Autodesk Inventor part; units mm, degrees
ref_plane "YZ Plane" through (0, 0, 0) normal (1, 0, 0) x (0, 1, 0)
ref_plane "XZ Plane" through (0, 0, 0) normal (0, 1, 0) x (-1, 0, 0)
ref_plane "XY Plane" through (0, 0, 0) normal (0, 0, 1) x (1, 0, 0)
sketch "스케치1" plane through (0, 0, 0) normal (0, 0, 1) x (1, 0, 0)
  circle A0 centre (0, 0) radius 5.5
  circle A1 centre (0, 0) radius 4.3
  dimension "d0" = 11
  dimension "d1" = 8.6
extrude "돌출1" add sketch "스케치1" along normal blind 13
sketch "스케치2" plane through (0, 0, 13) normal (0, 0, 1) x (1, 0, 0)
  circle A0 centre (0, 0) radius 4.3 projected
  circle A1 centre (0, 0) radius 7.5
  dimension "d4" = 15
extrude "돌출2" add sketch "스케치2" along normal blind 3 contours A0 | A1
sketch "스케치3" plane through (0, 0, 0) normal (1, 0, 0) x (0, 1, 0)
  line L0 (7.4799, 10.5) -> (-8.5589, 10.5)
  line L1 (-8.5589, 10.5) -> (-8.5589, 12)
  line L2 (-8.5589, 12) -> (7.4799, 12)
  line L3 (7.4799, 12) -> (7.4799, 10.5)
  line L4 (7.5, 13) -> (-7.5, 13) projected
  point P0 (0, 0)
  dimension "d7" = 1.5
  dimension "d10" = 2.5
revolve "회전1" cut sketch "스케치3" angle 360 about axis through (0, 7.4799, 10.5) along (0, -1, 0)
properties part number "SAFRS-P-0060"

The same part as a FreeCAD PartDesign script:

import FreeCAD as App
import Part
import Sketcher

V = App.Vector
Q = App.Units.Quantity

doc = App.newDocument("Part")
body = doc.addObject("PartDesign::Body", "Body")

sketch1 = body.newObject("Sketcher::SketchObject", "Sketch")
sketch1.AttachmentSupport = (doc.getObject("XY_Plane"), [""])
sketch1.MapMode = "FlatFace"
sketch1.addGeometry(Part.Circle(V(0, 0, 0), V(0, 0, 1), 5.5), False)
sketch1.addGeometry(Part.Circle(V(0, 0, 0), V(0, 0, 1), 4.3), False)
sketch1.addConstraint(Sketcher.Constraint("Coincident", 0, 3, -1, 1))
sketch1.addConstraint(Sketcher.Constraint("Coincident", 1, 3, -1, 1))
sketch1.addConstraint(Sketcher.Constraint("Diameter", 0, Q("11 mm")))
sketch1.addConstraint(Sketcher.Constraint("Diameter", 1, Q("8.6 mm")))
pad1 = body.newObject("PartDesign::Pad", "Pad")
pad1.Profile = sketch1
pad1.Length = 13

sketch2 = body.newObject("Sketcher::SketchObject", "Sketch001")
sketch2.AttachmentSupport = (doc.getObject("XY_Plane"), [""])
sketch2.MapMode = "FlatFace"
sketch2.AttachmentOffset = App.Placement(V(0, 0, 13), App.Rotation())
sketch2.addGeometry(Part.Circle(V(0, 0, 0), V(0, 0, 1), 8), False)
sketch2.addConstraint(Sketcher.Constraint("Coincident", 0, 3, -1, 1))
sketch2.addConstraint(Sketcher.Constraint("Diameter", 0, Q("15 mm")))
pad2 = body.newObject("PartDesign::Pad", "Pad001")
pad2.Profile = sketch2
pad2.Length = 3

sketch3 = body.newObject("Sketcher::SketchObject", "Sketch002")
sketch3.AttachmentSupport = (doc.getObject("YZ_Plane"), [""])
sketch3.MapMode = "FlatFace"
sketch3.addGeometry(Part.LineSegment(V(-8.6, 10.5, 0), V(7.5, 10.5, 0)), False)
sketch3.addGeometry(Part.LineSegment(V(7.5, 10.5, 0), V(7.5, 12, 0)), False)
sketch3.addGeometry(Part.LineSegment(V(7.5, 12, 0), V(-8.6, 12, 0)), False)
sketch3.addGeometry(Part.LineSegment(V(-8.6, 12, 0), V(-8.6, 10.5, 0)), False)
sketch3.addGeometry(Part.LineSegment(V(7.5, 10.5, 0), V(-8.6, 10.5, 0)), True)
sketch3.addConstraint(Sketcher.Constraint("Coincident", 0, 2, 1, 1))
sketch3.addConstraint(Sketcher.Constraint("Coincident", 1, 2, 2, 1))
sketch3.addConstraint(Sketcher.Constraint("Coincident", 2, 2, 3, 1))
sketch3.addConstraint(Sketcher.Constraint("Coincident", 3, 2, 0, 1))
sketch3.addConstraint(Sketcher.Constraint("Horizontal", 0))
sketch3.addConstraint(Sketcher.Constraint("Vertical", 1))
sketch3.addConstraint(Sketcher.Constraint("Horizontal", 2))
sketch3.addConstraint(Sketcher.Constraint("Vertical", 3))
sketch3.addConstraint(Sketcher.Constraint("Horizontal", 4))
sketch3.addConstraint(Sketcher.Constraint("Coincident", 4, 1, 0, 2))
sketch3.addConstraint(Sketcher.Constraint("Vertical", 2, 2, 4, 2))
sketch3.addConstraint(Sketcher.Constraint("DistanceY", 1, 1, 1, 2, Q("1.5 mm")))
sketch3.addConstraint(Sketcher.Constraint("DistanceY", -1, 1, 1, 2, Q("12 mm")))
sketch3.addConstraint(Sketcher.Constraint("DistanceX", -1, 1, 0, 2, Q("7.48 mm")))
sketch3.addConstraint(Sketcher.Constraint("DistanceX", 0, 1, 0, 2, Q("16.0388 mm")))
groove = body.newObject("PartDesign::Groove", "Groove")
groove.Profile = sketch3
groove.ReferenceAxis = (sketch3, ["Axis0"])
groove.Angle = 360

doc.recompute()
